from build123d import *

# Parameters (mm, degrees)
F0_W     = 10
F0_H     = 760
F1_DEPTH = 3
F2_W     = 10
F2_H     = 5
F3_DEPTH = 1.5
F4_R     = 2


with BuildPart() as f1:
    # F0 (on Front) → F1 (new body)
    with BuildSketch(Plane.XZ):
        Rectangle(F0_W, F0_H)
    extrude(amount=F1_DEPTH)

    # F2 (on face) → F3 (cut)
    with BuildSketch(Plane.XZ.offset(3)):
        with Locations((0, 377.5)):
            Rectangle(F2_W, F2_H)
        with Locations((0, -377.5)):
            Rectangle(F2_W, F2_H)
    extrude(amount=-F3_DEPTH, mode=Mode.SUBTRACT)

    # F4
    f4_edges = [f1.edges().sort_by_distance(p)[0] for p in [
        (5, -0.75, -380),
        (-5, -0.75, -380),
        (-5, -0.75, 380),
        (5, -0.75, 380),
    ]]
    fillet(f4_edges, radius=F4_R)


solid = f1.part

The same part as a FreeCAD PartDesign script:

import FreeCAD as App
import Part
import Sketcher


def edges_at(feature, points):
    """Names of the edges that pass closest to the given points."""
    edges = feature.Shape.Edges
    near = lambda p: min(range(len(edges)), key=lambda i: edges[i].distToShape(Part.Vertex(*p))[0])
    return sorted({f"Edge{near(p) + 1}" for p in points})

doc = App.newDocument("Part")
body = doc.addObject("PartDesign::Body", "Body")

# Sketch on XZ plane
sketch1 = doc.addObject("Sketcher::SketchObject", "Sketch")
body.addObject(sketch1)
sketch1.AttachmentSupport = (doc.XZ_Plane, [""])
sketch1.MapMode = "FlatFace"
sketch1.addGeometry([
    Part.LineSegment(App.Vector(-5, 380, 0), App.Vector(-5, -380, 0)),
    Part.LineSegment(App.Vector(-5, -380, 0), App.Vector(5, -380, 0)),
    Part.LineSegment(App.Vector(5, -380, 0), App.Vector(5, 380, 0)),
    Part.LineSegment(App.Vector(5, 380, 0), App.Vector(-5, 380, 0)),
], False)
sketch1.addConstraint([
    Sketcher.Constraint("Coincident", 0, 2, 1, 1),
    Sketcher.Constraint("Coincident", 1, 2, 2, 1),
    Sketcher.Constraint("Coincident", 2, 2, 3, 1),
    Sketcher.Constraint("Coincident", 3, 2, 0, 1),
    Sketcher.Constraint("Vertical", 0),
    Sketcher.Constraint("Horizontal", 1),
    Sketcher.Constraint("Vertical", 2),
    Sketcher.Constraint("Horizontal", 3),
    Sketcher.Constraint("Symmetric", 0, 2, 2, 2, -1, 1),
    Sketcher.Constraint("DistanceX", 1, 1, 1, 2, 10.0),
    Sketcher.Constraint("DistanceY", 0, 2, 0, 1, 760.0),
])
pad1 = doc.addObject("PartDesign::Pad", "Pad")
body.addObject(pad1)
pad1.Profile = sketch1
pad1.Length = 3

# Sketch on XZ plane
sketch2 = doc.addObject("Sketcher::SketchObject", "Sketch001")
body.addObject(sketch2)
sketch2.AttachmentSupport = (doc.XZ_Plane, [""])
sketch2.MapMode = "FlatFace"
sketch2.AttachmentOffset = App.Placement(App.Vector(0, 0, 3), App.Rotation())
sketch2.addGeometry([
    Part.LineSegment(App.Vector(-5, 380, 0), App.Vector(-5, 375, 0)),  # 0
    Part.LineSegment(App.Vector(-5, 375, 0), App.Vector(5, 375, 0)),  # 1
    Part.LineSegment(App.Vector(5, 375, 0), App.Vector(5, 380, 0)),  # 2
    Part.LineSegment(App.Vector(5, 380, 0), App.Vector(-5, 380, 0)),  # 3
    Part.LineSegment(App.Vector(-5, -375, 0), App.Vector(-5, -380, 0)),  # 4
    Part.LineSegment(App.Vector(-5, -380, 0), App.Vector(5, -380, 0)),  # 5
    Part.LineSegment(App.Vector(5, -380, 0), App.Vector(5, -375, 0)),  # 6
    Part.LineSegment(App.Vector(5, -375, 0), App.Vector(-5, -375, 0)),  # 7
], False)
sketch2.addConstraint([
    Sketcher.Constraint("Coincident", 0, 2, 1, 1),
    Sketcher.Constraint("Coincident", 1, 2, 2, 1),
    Sketcher.Constraint("Coincident", 2, 2, 3, 1),
    Sketcher.Constraint("Coincident", 3, 2, 0, 1),
    Sketcher.Constraint("Coincident", 4, 2, 5, 1),
    Sketcher.Constraint("Coincident", 5, 2, 6, 1),
    Sketcher.Constraint("Coincident", 6, 2, 7, 1),
    Sketcher.Constraint("Coincident", 7, 2, 4, 1),
    Sketcher.Constraint("Vertical", 0),
    Sketcher.Constraint("Horizontal", 1),
    Sketcher.Constraint("Vertical", 2),
    Sketcher.Constraint("Horizontal", 3),
    Sketcher.Constraint("Vertical", 4),
    Sketcher.Constraint("Horizontal", 5),
    Sketcher.Constraint("Vertical", 6),
    Sketcher.Constraint("Horizontal", 7),
    Sketcher.Constraint("Symmetric", 2, 2, 4, 2, -1, 1),
    Sketcher.Constraint("Symmetric", 0, 2, 6, 2, -1, 1),
    Sketcher.Constraint("Vertical", 3, 2, 4, 2),
    Sketcher.Constraint("DistanceX", 1, 1, 1, 2, 10.0),
    Sketcher.Constraint("DistanceY", 0, 2, 0, 1, 5.0),
    Sketcher.Constraint("DistanceY", -1, 1, 0, 2, 375.0),
])
pocket1 = doc.addObject("PartDesign::Pocket", "Pocket")
body.addObject(pocket1)
pocket1.Profile = sketch2
pocket1.Length = 1.5
doc.recompute()

fillet = doc.addObject("PartDesign::Fillet", "Fillet")
body.addObject(fillet)
fillet.Base = (pocket1, edges_at(pocket1, [
    (5, -0.75, -380),
    (-5, -0.75, -380),
    (-5, -0.75, 380),
    (5, -0.75, 380),
]))
fillet.Radius = 2

doc.recompute()
